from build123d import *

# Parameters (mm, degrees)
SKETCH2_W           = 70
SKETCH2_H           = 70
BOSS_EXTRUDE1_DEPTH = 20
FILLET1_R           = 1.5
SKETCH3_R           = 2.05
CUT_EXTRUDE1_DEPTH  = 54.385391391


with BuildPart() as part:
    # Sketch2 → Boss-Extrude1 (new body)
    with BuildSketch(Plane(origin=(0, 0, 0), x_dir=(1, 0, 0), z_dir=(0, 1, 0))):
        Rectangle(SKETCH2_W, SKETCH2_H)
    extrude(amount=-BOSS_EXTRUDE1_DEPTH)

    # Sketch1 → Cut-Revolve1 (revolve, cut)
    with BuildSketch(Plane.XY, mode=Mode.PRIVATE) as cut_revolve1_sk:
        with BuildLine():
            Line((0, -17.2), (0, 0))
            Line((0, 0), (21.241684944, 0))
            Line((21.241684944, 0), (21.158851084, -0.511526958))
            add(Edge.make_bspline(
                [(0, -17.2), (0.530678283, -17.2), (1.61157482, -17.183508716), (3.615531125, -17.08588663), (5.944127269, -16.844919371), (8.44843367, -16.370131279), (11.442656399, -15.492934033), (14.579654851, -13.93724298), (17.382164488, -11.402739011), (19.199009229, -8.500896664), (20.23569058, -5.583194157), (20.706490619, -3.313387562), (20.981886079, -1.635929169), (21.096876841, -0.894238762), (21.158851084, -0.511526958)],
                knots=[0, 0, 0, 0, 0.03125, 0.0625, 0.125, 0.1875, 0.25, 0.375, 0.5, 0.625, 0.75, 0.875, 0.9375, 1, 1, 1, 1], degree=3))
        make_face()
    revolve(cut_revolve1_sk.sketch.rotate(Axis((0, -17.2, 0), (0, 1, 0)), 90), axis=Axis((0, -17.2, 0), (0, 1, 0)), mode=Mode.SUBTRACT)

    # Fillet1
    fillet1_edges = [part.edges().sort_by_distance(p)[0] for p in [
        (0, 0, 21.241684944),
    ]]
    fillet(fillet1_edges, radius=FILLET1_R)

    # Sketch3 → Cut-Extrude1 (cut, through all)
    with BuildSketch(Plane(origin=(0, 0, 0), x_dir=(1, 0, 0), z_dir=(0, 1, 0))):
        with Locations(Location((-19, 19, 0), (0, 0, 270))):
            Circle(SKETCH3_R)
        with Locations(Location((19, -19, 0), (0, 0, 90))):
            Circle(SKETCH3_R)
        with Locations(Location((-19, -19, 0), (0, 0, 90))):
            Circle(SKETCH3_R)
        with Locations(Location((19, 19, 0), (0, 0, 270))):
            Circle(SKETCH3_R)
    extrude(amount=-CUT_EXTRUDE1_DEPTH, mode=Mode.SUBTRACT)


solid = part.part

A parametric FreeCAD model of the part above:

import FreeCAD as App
import Part
import Sketcher
from FreeCAD import Vector
Q = App.Units.Quantity


def edges_at(feature, points):
    """Names of the edges that pass closest to the given points."""
    edges = feature.Shape.Edges
    near = lambda p: min(range(len(edges)), key=lambda i: edges[i].distToShape(Part.Vertex(*p))[0])
    return sorted({f"Edge{near(p) + 1}" for p in points})


def add_polygon(sketch, points):
    """Adds a closed chain of lines whose ends are joined by coincident constraints."""
    first, n = sketch.GeometryCount, len(points)
    for a, b in zip(points, points[1:] + points[:1]):
        sketch.addGeometry(Part.LineSegment(App.Vector(*a, 0), App.Vector(*b, 0)), False)
    for i in range(n):
        sketch.addConstraint(Sketcher.Constraint("Coincident", first + i, 2, first + (i + 1) % n, 1))

doc = App.newDocument("Part")
params = doc.addObject("Spreadsheet::Sheet", "Params")
for row, (alias, value) in enumerate([
    ("sketch1_width", "70 mm"),
    ("pad1_length", "20 mm"),
    ("groove_angle", "360 deg"),
    ("fillet_radius", "1.5 mm"),
    ("sketch3_diameter", "4.1 mm"),
], start=1):
    params.set(f"A{row}", alias)
    params.set(f"B{row}", "=" + value)
    params.setAlias(f"B{row}", alias)

body = doc.addObject("PartDesign::Body", "Body")

sketch1 = body.newObject("Sketcher::SketchObject", "Sketch")
sketch1.AttachmentSupport = (doc.getObject("XZ_Plane"), [""])
sketch1.MapMode = "FlatFace"
add_polygon(sketch1, [(-35, -35), (-35, 35), (35, 35), (35, -35)])
sketch1.addConstraint(Sketcher.Constraint("Vertical", 0))
sketch1.addConstraint(Sketcher.Constraint("Horizontal", 1))
sketch1.addConstraint(Sketcher.Constraint("Vertical", 2))
sketch1.addConstraint(Sketcher.Constraint("Horizontal", 3))
sketch1.addConstraint(Sketcher.Constraint("Symmetric", 0, 2, 2, 2, -1, 1))
sketch1.addConstraint(Sketcher.Constraint("Equal", 3, 0))
sketch1.addConstraint(Sketcher.Constraint("DistanceX", 1, 1, 1, 2, Q("70 mm")))
sketch1.setExpression("Constraints[10]", "Params.sketch1_width")
pad1 = body.newObject("PartDesign::Pad", "Pad")
pad1.Profile = sketch1
pad1.setExpression("Length", "Params.pad1_length")

sketch2 = body.newObject("Sketcher::SketchObject", "Sketch001")
sketch2.AttachmentSupport = (doc.getObject("XY_Plane"), [""])
sketch2.MapMode = "FlatFace"
sketch2.addGeometry(Part.LineSegment(Vector(0, 0, 0), Vector(0, -17.2, 0)), False)
sketch2.addGeometry(Part.BSplineCurve([Vector(0, -17.2, 0), Vector(0.530678, -17.2, 0), Vector(1.611575, -17.183509, 0), Vector(3.615531, -17.085887, 0), Vector(5.944127, -16.844919, 0), Vector(8.448434, -16.370131, 0), Vector(11.442656, -15.492934, 0), Vector(14.579655, -13.937243, 0), Vector(17.382164, -11.402739, 0), Vector(19.199009, -8.500897, 0), Vector(20.235691, -5.583194, 0), Vector(20.706491, -3.313388, 0), Vector(20.981886, -1.635929, 0), Vector(21.096877, -0.894239, 0), Vector(21.158851, -0.511527, 0)], [4, 1, 1, 1, 1, 1, 1, 1, 1, 1, 1, 1, 4], [0, 0.03125, 0.0625, 0.125, 0.1875, 0.25, 0.375, 0.5, 0.625, 0.75, 0.875, 0.9375, 1], False, 3, [1, 1, 1, 1, 1, 1, 1, 1, 1, 1, 1, 1, 1, 1, 1], False), False)
sketch2.addGeometry(Part.LineSegment(Vector(21.158851, -0.511527, 0), Vector(21.241685, 0, 0)), False)
sketch2.addGeometry(Part.LineSegment(Vector(21.241685, 0, 0), Vector(0, 0, 0)), False)
sketch2.addConstraint(Sketcher.Constraint("Block", 1))
sketch2.addConstraint(Sketcher.Constraint("Coincident", 0, 2, 1, 1))
sketch2.addConstraint(Sketcher.Constraint("Coincident", 1, 2, 2, 1))
sketch2.addConstraint(Sketcher.Constraint("Coincident", 2, 2, 3, 1))
sketch2.addConstraint(Sketcher.Constraint("Coincident", 3, 2, 0, 1))
sketch2.addConstraint(Sketcher.Constraint("Vertical", 0))
sketch2.addConstraint(Sketcher.Constraint("Horizontal", 3))
sketch2.addConstraint(Sketcher.Constraint("PointOnObject", 2, 2, -1))
sketch2.addConstraint(Sketcher.Constraint("Distance", 2, Q("0.51819 mm")))
groove = body.newObject("PartDesign::Groove", "Groove")
groove.Profile = sketch2
groove.ReferenceAxis = (sketch2, ["V_Axis"])
groove.setExpression("Angle", "Params.groove_angle")
doc.recompute()

fillet = body.newObject("PartDesign::Fillet", "Fillet")
fillet.Base = (groove, edges_at(groove, [(0, 0, 21.242)]))
fillet.setExpression("Radius", "Params.fillet_radius")

sketch3 = body.newObject("Sketcher::SketchObject", "Sketch002")
sketch3.AttachmentSupport = (doc.getObject("XZ_Plane"), [""])
sketch3.MapMode = "FlatFace"
sketch3.addGeometry(Part.Circle(Vector(-19, -19, 0), Vector(0, 0, 1), 2), False)
sketch3.addGeometry(Part.Circle(Vector(19, 19, 0), Vector(0, 0, 1), 2), False)
sketch3.addGeometry(Part.Circle(Vector(-19, 19, 0), Vector(0, 0, 1), 2), False)
sketch3.addGeometry(Part.Circle(Vector(19, -19, 0), Vector(0, 0, 1), 2), False)
sketch3.addConstraint(Sketcher.Constraint("Equal", 0, 1))
sketch3.addConstraint(Sketcher.Constraint("Equal", 1, 2))
sketch3.addConstraint(Sketcher.Constraint("Equal", 2, 3))
sketch3.addConstraint(Sketcher.Constraint("Symmetric", 0, 3, 1, 3, -1, 1))
sketch3.addConstraint(Sketcher.Constraint("Symmetric", 2, 3, 3, 3, -1, 1))
sketch3.addConstraint(Sketcher.Constraint("Symmetric", 1, 3, 2, 3, -2))
sketch3.addConstraint(Sketcher.Constraint("Diameter", 0, Q("4.1 mm")))
sketch3.addConstraint(Sketcher.Constraint("DistanceX", 0, 3, -1, 1, Q("19 mm")))
sketch3.addConstraint(Sketcher.Constraint("DistanceY", 0, 3, -1, 1, Q("19 mm")))
sketch3.setExpression("Constraints[6]", "Params.sketch3_diameter")
pocket1 = body.newObject("PartDesign::Pocket", "Pocket")
pocket1.Profile = sketch3
pocket1.Type = "ThroughAll"
pocket1.Reversed = True

doc.recompute()
